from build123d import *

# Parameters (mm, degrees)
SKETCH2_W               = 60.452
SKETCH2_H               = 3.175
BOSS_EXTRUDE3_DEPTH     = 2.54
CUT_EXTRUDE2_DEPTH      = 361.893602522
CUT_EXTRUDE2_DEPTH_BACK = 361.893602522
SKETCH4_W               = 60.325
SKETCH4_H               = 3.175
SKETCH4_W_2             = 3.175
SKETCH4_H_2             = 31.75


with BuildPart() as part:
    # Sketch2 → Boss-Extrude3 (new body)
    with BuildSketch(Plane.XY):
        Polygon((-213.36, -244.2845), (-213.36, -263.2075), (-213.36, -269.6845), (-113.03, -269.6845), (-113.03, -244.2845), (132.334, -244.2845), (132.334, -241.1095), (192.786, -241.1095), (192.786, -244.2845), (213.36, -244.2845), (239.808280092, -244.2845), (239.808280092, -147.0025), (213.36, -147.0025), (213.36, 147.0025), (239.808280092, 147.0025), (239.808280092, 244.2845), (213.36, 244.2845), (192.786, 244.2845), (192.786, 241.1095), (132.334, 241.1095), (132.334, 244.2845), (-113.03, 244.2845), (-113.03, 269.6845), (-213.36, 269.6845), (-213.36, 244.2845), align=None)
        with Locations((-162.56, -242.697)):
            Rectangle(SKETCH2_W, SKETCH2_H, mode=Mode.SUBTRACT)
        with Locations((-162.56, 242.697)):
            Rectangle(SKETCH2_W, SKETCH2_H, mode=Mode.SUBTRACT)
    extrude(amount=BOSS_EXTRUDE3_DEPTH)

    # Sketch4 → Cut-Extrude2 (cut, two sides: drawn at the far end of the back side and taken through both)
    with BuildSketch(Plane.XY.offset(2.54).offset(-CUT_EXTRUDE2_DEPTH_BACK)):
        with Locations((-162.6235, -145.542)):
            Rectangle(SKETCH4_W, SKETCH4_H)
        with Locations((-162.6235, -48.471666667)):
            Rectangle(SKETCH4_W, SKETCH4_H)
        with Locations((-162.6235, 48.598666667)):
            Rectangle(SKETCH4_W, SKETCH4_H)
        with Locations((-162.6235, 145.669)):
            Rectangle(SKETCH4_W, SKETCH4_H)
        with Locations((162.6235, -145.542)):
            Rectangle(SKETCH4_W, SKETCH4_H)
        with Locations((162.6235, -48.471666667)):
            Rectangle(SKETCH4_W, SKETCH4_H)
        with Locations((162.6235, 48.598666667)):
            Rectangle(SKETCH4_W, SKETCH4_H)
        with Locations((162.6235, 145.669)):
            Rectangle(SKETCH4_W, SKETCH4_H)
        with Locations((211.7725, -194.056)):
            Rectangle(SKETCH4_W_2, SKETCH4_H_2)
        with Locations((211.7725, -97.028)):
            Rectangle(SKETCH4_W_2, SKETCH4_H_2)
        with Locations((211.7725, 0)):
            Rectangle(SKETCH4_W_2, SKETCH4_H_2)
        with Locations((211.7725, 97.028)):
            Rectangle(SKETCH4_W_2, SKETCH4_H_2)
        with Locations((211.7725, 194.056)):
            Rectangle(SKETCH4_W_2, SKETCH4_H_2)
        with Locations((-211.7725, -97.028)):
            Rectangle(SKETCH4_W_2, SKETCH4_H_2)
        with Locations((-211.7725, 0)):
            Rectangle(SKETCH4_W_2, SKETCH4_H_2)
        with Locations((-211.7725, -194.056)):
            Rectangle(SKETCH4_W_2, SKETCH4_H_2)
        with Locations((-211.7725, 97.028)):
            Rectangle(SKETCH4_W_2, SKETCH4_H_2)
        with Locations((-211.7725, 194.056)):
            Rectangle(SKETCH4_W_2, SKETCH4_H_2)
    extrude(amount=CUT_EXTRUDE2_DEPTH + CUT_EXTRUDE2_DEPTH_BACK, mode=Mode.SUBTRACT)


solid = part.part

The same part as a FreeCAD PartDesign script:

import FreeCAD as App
import Part
import Sketcher
from FreeCAD import Vector
Q = App.Units.Quantity


def add_polygon(sketch, points):
    """Adds a closed chain of lines whose ends are joined by coincident constraints."""
    first, n = sketch.GeometryCount, len(points)
    for a, b in zip(points, points[1:] + points[:1]):
        sketch.addGeometry(Part.LineSegment(App.Vector(*a, 0), App.Vector(*b, 0)), False)
    for i in range(n):
        sketch.addConstraint(Sketcher.Constraint("Coincident", first + i, 2, first + (i + 1) % n, 1))

doc = App.newDocument("Part")
body = doc.addObject("PartDesign::Body", "Body")

sketch1 = body.newObject("Sketcher::SketchObject", "Sketch")
sketch1.AttachmentSupport = (doc.getObject("XY_Plane"), [""])
sketch1.MapMode = "FlatFace"
add_polygon(sketch1, [(-213.4, -269.7), (-113, -269.7), (-113, -244.3), (132.3, -244.3), (132.3, -241.1), (192.8, -241.1), (192.8, -244.3), (239.8, -244.3), (239.8, -147), (213.4, -147), (213.4, 147), (239.8, 147), (239.8, 244.3), (192.8, 244.3), (192.8, 241.1), (132.3, 241.1), (132.3, 244.3), (-113, 244.3), (-113, 269.7), (-213.4, 269.7)])
add_polygon(sketch1, [(-132.3, -244.3), (-192.8, -244.3), (-192.8, -241.1), (-132.3, -241.1)])
add_polygon(sketch1, [(-132.3, 241.1), (-192.8, 241.1), (-192.8, 244.3), (-132.3, 244.3)])
sketch1.addConstraint([
    Sketcher.Constraint("Horizontal", 0),
    Sketcher.Constraint("Vertical", 1),
    Sketcher.Constraint("Horizontal", 2),
    Sketcher.Constraint("Vertical", 3),
    Sketcher.Constraint("Horizontal", 4),
    Sketcher.Constraint("Vertical", 5),
    Sketcher.Constraint("Horizontal", 6),
    Sketcher.Constraint("Vertical", 7),
    Sketcher.Constraint("Horizontal", 8),
    Sketcher.Constraint("Vertical", 9),
    Sketcher.Constraint("Horizontal", 10),
    Sketcher.Constraint("Vertical", 11),
    Sketcher.Constraint("Horizontal", 12),
    Sketcher.Constraint("Vertical", 13),
    Sketcher.Constraint("Horizontal", 14),
    Sketcher.Constraint("Vertical", 15),
    Sketcher.Constraint("Horizontal", 16),
    Sketcher.Constraint("Vertical", 17),
    Sketcher.Constraint("Horizontal", 18),
    Sketcher.Constraint("Vertical", 19),
    Sketcher.Constraint("Horizontal", 20),
    Sketcher.Constraint("Vertical", 21),
    Sketcher.Constraint("Horizontal", 22),
    Sketcher.Constraint("Vertical", 23),
    Sketcher.Constraint("Horizontal", 24),
    Sketcher.Constraint("Vertical", 25),
    Sketcher.Constraint("Horizontal", 26),
    Sketcher.Constraint("Vertical", 27),
    Sketcher.Constraint("Symmetric", 12, 2, 20, 2, -1, 1),
    Sketcher.Constraint("Symmetric", 14, 2, 22, 2, -1, 1),
    Sketcher.Constraint("Symmetric", 4, 2, 24, 2, -1, 1),
    Sketcher.Constraint("Symmetric", 2, 2, 26, 2, -1, 1),
    Sketcher.Constraint("Symmetric", 5, 2, 20, 2, -2),
    Sketcher.Constraint("Symmetric", 3, 2, 22, 2, -2),
    Sketcher.Constraint("Symmetric", 7, 2, 10, 2, -1),
    Sketcher.Constraint("Symmetric", 1, 2, 16, 2, -1),
    Sketcher.Constraint("Horizontal", 2, 2, 5, 2),
    Sketcher.Constraint("Equal", 1, 17),
    Sketcher.Constraint("DistanceY", 1, 1, 1, 2, Q("1 in")),
    Sketcher.Constraint("DistanceX", 0, 1, 0, 2, Q("3.95 in")),
    Sketcher.Constraint("DistanceX", 2, 1, 2, 2, Q("9.66 in")),
    Sketcher.Constraint("DistanceX", 4, 1, 4, 2, Q("2.38 in")),
    Sketcher.Constraint("DistanceY", 7, 1, 7, 2, Q("3.83 in")),
    Sketcher.Constraint("DistanceX", -1, 1, 8, 2, Q("8.4 in")),
    Sketcher.Constraint("DistanceX", 18, 2, -1, 1, Q("8.4 in")),
    Sketcher.Constraint("DistanceY", 3, 1, 3, 2, Q("0.125 in")),
    Sketcher.Constraint("DistanceY", 9, 1, 9, 2, Q("11.575 in")),
    Sketcher.Constraint("DistanceX", 6, 1, 6, 2, 47.02228),
])
pad1 = body.newObject("PartDesign::Pad", "Pad")
pad1.Profile = sketch1
pad1.Length = Q("0.1 in")

sketch2 = body.newObject("Sketcher::SketchObject", "Sketch001")
sketch2.AttachmentSupport = (doc.getObject("XY_Plane"), [""])
sketch2.MapMode = "FlatFace"
sketch2.AttachmentOffset = App.Placement(Vector(0, 0, 0.1 * 25.4), App.Rotation())
add_polygon(sketch2, [(-192.8, -144), (-192.8, -147.1), (-132.5, -147.1), (-132.5, -144)])
add_polygon(sketch2, [(-192.8, -46.9), (-192.8, -50.1), (-132.5, -50.1), (-132.5, -46.9)])
add_polygon(sketch2, [(-192.8, 50.2), (-192.8, 47), (-132.5, 47), (-132.5, 50.2)])
add_polygon(sketch2, [(-192.8, 147.3), (-192.8, 144.1), (-132.5, 144.1), (-132.5, 147.3)])
add_polygon(sketch2, [(132.5, -144), (132.5, -147.1), (192.8, -147.1), (192.8, -144)])
add_polygon(sketch2, [(132.5, -46.9), (132.5, -50.1), (192.8, -50.1), (192.8, -46.9)])
add_polygon(sketch2, [(132.5, 50.2), (132.5, 47), (192.8, 47), (192.8, 50.2)])
add_polygon(sketch2, [(132.5, 147.3), (132.5, 144.1), (192.8, 144.1), (192.8, 147.3)])
add_polygon(sketch2, [(210.2, -178.2), (210.2, -209.9), (213.4, -209.9), (213.4, -178.2)])
add_polygon(sketch2, [(210.2, -81.2), (210.2, -112.9), (213.4, -112.9), (213.4, -81.2)])
add_polygon(sketch2, [(210.2, 15.9), (210.2, -15.9), (213.4, -15.9), (213.4, 15.9)])
add_polygon(sketch2, [(210.2, 112.9), (210.2, 81.2), (213.4, 81.2), (213.4, 112.9)])
add_polygon(sketch2, [(210.2, 209.9), (210.2, 178.2), (213.4, 178.2), (213.4, 209.9)])
add_polygon(sketch2, [(-213.4, -81.2), (-213.4, -112.9), (-210.2, -112.9), (-210.2, -81.2)])
add_polygon(sketch2, [(-213.4, 15.9), (-213.4, -15.9), (-210.2, -15.9), (-210.2, 15.9)])
add_polygon(sketch2, [(-213.4, -178.2), (-213.4, -209.9), (-210.2, -209.9), (-210.2, -178.2)])
add_polygon(sketch2, [(-213.4, 112.9), (-213.4, 81.2), (-210.2, 81.2), (-210.2, 112.9)])
add_polygon(sketch2, [(-213.4, 209.9), (-213.4, 178.2), (-210.2, 178.2), (-210.2, 209.9)])
sketch2.addConstraint([
    Sketcher.Constraint("Vertical", 0),
    Sketcher.Constraint("Horizontal", 1),
    Sketcher.Constraint("Vertical", 2),
    Sketcher.Constraint("Horizontal", 3),
    Sketcher.Constraint("Vertical", 4),
    Sketcher.Constraint("Horizontal", 5),
    Sketcher.Constraint("Vertical", 6),
    Sketcher.Constraint("Horizontal", 7),
    Sketcher.Constraint("Vertical", 8),
    Sketcher.Constraint("Horizontal", 9),
    Sketcher.Constraint("Vertical", 10),
    Sketcher.Constraint("Horizontal", 11),
    Sketcher.Constraint("Vertical", 12),
    Sketcher.Constraint("Horizontal", 13),
    Sketcher.Constraint("Vertical", 14),
    Sketcher.Constraint("Horizontal", 15),
    Sketcher.Constraint("Vertical", 16),
    Sketcher.Constraint("Horizontal", 17),
    Sketcher.Constraint("Vertical", 18),
    Sketcher.Constraint("Horizontal", 19),
    Sketcher.Constraint("Vertical", 20),
    Sketcher.Constraint("Horizontal", 21),
    Sketcher.Constraint("Vertical", 22),
    Sketcher.Constraint("Horizontal", 23),
    Sketcher.Constraint("Vertical", 24),
    Sketcher.Constraint("Horizontal", 25),
    Sketcher.Constraint("Vertical", 26),
    Sketcher.Constraint("Horizontal", 27),
    Sketcher.Constraint("Vertical", 28),
    Sketcher.Constraint("Horizontal", 29),
    Sketcher.Constraint("Vertical", 30),
    Sketcher.Constraint("Horizontal", 31),
    Sketcher.Constraint("Vertical", 32),
    Sketcher.Constraint("Horizontal", 33),
    Sketcher.Constraint("Vertical", 34),
    Sketcher.Constraint("Horizontal", 35),
    Sketcher.Constraint("Vertical", 36),
    Sketcher.Constraint("Horizontal", 37),
    Sketcher.Constraint("Vertical", 38),
    Sketcher.Constraint("Horizontal", 39),
    Sketcher.Constraint("Vertical", 40),
    Sketcher.Constraint("Horizontal", 41),
    Sketcher.Constraint("Vertical", 42),
    Sketcher.Constraint("Horizontal", 43),
    Sketcher.Constraint("Vertical", 44),
    Sketcher.Constraint("Horizontal", 45),
    Sketcher.Constraint("Vertical", 46),
    Sketcher.Constraint("Horizontal", 47),
    Sketcher.Constraint("Vertical", 48),
    Sketcher.Constraint("Horizontal", 49),
    Sketcher.Constraint("Vertical", 50),
    Sketcher.Constraint("Horizontal", 51),
    Sketcher.Constraint("Vertical", 52),
    Sketcher.Constraint("Horizontal", 53),
    Sketcher.Constraint("Vertical", 54),
    Sketcher.Constraint("Horizontal", 55),
    Sketcher.Constraint("Vertical", 56),
    Sketcher.Constraint("Horizontal", 57),
    Sketcher.Constraint("Vertical", 58),
    Sketcher.Constraint("Horizontal", 59),
    Sketcher.Constraint("Vertical", 60),
    Sketcher.Constraint("Horizontal", 61),
    Sketcher.Constraint("Vertical", 62),
    Sketcher.Constraint("Horizontal", 63),
    Sketcher.Constraint("Vertical", 64),
    Sketcher.Constraint("Horizontal", 65),
    Sketcher.Constraint("Vertical", 66),
    Sketcher.Constraint("Horizontal", 67),
    Sketcher.Constraint("Vertical", 68),
    Sketcher.Constraint("Horizontal", 69),
    Sketcher.Constraint("Vertical", 70),
    Sketcher.Constraint("Horizontal", 71),
    Sketcher.Constraint("Symmetric", 46, 2, 52, 2, -1, 1),
    Sketcher.Constraint("Symmetric", 44, 2, 54, 2, -1, 1),
    Sketcher.Constraint("Symmetric", 42, 2, 56, 2, -1, 1),
    Sketcher.Constraint("Symmetric", 40, 2, 58, 2, -1, 1),
    Sketcher.Constraint("Symmetric", 50, 2, 60, 2, -1, 1),
    Sketcher.Constraint("Symmetric", 48, 2, 62, 2, -1, 1),
    Sketcher.Constraint("Symmetric", 38, 2, 64, 2, -1, 1),
    Sketcher.Constraint("Symmetric", 36, 2, 66, 2, -1, 1),
    Sketcher.Constraint("Symmetric", 34, 2, 68, 2, -1, 1),
    Sketcher.Constraint("Symmetric", 32, 2, 70, 2, -1, 1),
    Sketcher.Constraint("Symmetric", 1, 2, 16, 2, -2),
    Sketcher.Constraint("Symmetric", 3, 2, 18, 2, -2),
    Sketcher.Constraint("Symmetric", 5, 2, 20, 2, -2),
    Sketcher.Constraint("Symmetric", 7, 2, 22, 2, -2),
    Sketcher.Constraint("Symmetric", 9, 2, 24, 2, -2),
    Sketcher.Constraint("Symmetric", 11, 2, 26, 2, -2),
    Sketcher.Constraint("Symmetric", 13, 2, 28, 2, -2),
    Sketcher.Constraint("Symmetric", 15, 2, 30, 2, -2),
    Sketcher.Constraint("Symmetric", 37, 2, 52, 2, -2),
    Sketcher.Constraint("Symmetric", 39, 2, 54, 2, -2),
    Sketcher.Constraint("Symmetric", 33, 2, 60, 2, -2),
    Sketcher.Constraint("Symmetric", 35, 2, 62, 2, -2),
    Sketcher.Constraint("Horizontal", 41, 2, 56, 2),
    Sketcher.Constraint("Vertical", 3, 2, 4, 2),
    Sketcher.Constraint("Vertical", 2, 2, 5, 2),
    Sketcher.Constraint("Vertical", 7, 2, 8, 2),
    Sketcher.Constraint("Vertical", 6, 2, 9, 2),
    Sketcher.Constraint("Vertical", 11, 2, 12, 2),
    Sketcher.Constraint("Vertical", 10, 2, 13, 2),
    Sketcher.Constraint("Vertical", 35, 2, 36, 2),
    Sketcher.Constraint("Vertical", 34, 2, 37, 2),
    Sketcher.Constraint("Vertical", 39, 2, 40, 2),
    Sketcher.Constraint("Vertical", 38, 2, 41, 2),
    Sketcher.Constraint("Equal", 71, 0),
    Sketcher.Constraint("Equal", 2, 4),
    Sketcher.Constraint("Equal", 6, 8),
    Sketcher.Constraint("Equal", 10, 12),
    Sketcher.Constraint("Equal", 34, 36),
    Sketcher.Constraint("Equal", 38, 40),
    Sketcher.Constraint("DistanceY", 32, 2, 32, 1, Q("1.25 in")),
    Sketcher.Constraint("DistanceX", -1, 1, 33, 2, Q("8.4 in")),
    Sketcher.Constraint("DistanceX", 1, 1, 1, 2, Q("2.375 in")),
    Sketcher.Constraint("DistanceX", 33, 1, 33, 2, Q("0.125 in")),
    Sketcher.Constraint("DistanceX", 0, 2, -1, 1, Q("7.59 in")),
    Sketcher.Constraint("DistanceY", 32, 2, -1, 1, Q("8.265 in")),
    Sketcher.Constraint("DistanceY", 36, 2, -1, 1, Q("4.445 in")),
    Sketcher.Constraint("DistanceY", 0, 2, -1, 1, Q("5.7925 in")),
    Sketcher.Constraint("DistanceY", -1, 1, 12, 2, Q("5.6725 in")),
    Sketcher.Constraint("DistanceY", 4, 2, -1, 1, 50.059167),
    Sketcher.Constraint("DistanceY", -1, 1, 8, 2, 47.011167),
])
pocket1 = body.newObject("PartDesign::Pocket", "Pocket")
pocket1.Profile = sketch2
pocket1.Type = "ThroughAll"
pocket1.Midplane = True

doc.recompute()
